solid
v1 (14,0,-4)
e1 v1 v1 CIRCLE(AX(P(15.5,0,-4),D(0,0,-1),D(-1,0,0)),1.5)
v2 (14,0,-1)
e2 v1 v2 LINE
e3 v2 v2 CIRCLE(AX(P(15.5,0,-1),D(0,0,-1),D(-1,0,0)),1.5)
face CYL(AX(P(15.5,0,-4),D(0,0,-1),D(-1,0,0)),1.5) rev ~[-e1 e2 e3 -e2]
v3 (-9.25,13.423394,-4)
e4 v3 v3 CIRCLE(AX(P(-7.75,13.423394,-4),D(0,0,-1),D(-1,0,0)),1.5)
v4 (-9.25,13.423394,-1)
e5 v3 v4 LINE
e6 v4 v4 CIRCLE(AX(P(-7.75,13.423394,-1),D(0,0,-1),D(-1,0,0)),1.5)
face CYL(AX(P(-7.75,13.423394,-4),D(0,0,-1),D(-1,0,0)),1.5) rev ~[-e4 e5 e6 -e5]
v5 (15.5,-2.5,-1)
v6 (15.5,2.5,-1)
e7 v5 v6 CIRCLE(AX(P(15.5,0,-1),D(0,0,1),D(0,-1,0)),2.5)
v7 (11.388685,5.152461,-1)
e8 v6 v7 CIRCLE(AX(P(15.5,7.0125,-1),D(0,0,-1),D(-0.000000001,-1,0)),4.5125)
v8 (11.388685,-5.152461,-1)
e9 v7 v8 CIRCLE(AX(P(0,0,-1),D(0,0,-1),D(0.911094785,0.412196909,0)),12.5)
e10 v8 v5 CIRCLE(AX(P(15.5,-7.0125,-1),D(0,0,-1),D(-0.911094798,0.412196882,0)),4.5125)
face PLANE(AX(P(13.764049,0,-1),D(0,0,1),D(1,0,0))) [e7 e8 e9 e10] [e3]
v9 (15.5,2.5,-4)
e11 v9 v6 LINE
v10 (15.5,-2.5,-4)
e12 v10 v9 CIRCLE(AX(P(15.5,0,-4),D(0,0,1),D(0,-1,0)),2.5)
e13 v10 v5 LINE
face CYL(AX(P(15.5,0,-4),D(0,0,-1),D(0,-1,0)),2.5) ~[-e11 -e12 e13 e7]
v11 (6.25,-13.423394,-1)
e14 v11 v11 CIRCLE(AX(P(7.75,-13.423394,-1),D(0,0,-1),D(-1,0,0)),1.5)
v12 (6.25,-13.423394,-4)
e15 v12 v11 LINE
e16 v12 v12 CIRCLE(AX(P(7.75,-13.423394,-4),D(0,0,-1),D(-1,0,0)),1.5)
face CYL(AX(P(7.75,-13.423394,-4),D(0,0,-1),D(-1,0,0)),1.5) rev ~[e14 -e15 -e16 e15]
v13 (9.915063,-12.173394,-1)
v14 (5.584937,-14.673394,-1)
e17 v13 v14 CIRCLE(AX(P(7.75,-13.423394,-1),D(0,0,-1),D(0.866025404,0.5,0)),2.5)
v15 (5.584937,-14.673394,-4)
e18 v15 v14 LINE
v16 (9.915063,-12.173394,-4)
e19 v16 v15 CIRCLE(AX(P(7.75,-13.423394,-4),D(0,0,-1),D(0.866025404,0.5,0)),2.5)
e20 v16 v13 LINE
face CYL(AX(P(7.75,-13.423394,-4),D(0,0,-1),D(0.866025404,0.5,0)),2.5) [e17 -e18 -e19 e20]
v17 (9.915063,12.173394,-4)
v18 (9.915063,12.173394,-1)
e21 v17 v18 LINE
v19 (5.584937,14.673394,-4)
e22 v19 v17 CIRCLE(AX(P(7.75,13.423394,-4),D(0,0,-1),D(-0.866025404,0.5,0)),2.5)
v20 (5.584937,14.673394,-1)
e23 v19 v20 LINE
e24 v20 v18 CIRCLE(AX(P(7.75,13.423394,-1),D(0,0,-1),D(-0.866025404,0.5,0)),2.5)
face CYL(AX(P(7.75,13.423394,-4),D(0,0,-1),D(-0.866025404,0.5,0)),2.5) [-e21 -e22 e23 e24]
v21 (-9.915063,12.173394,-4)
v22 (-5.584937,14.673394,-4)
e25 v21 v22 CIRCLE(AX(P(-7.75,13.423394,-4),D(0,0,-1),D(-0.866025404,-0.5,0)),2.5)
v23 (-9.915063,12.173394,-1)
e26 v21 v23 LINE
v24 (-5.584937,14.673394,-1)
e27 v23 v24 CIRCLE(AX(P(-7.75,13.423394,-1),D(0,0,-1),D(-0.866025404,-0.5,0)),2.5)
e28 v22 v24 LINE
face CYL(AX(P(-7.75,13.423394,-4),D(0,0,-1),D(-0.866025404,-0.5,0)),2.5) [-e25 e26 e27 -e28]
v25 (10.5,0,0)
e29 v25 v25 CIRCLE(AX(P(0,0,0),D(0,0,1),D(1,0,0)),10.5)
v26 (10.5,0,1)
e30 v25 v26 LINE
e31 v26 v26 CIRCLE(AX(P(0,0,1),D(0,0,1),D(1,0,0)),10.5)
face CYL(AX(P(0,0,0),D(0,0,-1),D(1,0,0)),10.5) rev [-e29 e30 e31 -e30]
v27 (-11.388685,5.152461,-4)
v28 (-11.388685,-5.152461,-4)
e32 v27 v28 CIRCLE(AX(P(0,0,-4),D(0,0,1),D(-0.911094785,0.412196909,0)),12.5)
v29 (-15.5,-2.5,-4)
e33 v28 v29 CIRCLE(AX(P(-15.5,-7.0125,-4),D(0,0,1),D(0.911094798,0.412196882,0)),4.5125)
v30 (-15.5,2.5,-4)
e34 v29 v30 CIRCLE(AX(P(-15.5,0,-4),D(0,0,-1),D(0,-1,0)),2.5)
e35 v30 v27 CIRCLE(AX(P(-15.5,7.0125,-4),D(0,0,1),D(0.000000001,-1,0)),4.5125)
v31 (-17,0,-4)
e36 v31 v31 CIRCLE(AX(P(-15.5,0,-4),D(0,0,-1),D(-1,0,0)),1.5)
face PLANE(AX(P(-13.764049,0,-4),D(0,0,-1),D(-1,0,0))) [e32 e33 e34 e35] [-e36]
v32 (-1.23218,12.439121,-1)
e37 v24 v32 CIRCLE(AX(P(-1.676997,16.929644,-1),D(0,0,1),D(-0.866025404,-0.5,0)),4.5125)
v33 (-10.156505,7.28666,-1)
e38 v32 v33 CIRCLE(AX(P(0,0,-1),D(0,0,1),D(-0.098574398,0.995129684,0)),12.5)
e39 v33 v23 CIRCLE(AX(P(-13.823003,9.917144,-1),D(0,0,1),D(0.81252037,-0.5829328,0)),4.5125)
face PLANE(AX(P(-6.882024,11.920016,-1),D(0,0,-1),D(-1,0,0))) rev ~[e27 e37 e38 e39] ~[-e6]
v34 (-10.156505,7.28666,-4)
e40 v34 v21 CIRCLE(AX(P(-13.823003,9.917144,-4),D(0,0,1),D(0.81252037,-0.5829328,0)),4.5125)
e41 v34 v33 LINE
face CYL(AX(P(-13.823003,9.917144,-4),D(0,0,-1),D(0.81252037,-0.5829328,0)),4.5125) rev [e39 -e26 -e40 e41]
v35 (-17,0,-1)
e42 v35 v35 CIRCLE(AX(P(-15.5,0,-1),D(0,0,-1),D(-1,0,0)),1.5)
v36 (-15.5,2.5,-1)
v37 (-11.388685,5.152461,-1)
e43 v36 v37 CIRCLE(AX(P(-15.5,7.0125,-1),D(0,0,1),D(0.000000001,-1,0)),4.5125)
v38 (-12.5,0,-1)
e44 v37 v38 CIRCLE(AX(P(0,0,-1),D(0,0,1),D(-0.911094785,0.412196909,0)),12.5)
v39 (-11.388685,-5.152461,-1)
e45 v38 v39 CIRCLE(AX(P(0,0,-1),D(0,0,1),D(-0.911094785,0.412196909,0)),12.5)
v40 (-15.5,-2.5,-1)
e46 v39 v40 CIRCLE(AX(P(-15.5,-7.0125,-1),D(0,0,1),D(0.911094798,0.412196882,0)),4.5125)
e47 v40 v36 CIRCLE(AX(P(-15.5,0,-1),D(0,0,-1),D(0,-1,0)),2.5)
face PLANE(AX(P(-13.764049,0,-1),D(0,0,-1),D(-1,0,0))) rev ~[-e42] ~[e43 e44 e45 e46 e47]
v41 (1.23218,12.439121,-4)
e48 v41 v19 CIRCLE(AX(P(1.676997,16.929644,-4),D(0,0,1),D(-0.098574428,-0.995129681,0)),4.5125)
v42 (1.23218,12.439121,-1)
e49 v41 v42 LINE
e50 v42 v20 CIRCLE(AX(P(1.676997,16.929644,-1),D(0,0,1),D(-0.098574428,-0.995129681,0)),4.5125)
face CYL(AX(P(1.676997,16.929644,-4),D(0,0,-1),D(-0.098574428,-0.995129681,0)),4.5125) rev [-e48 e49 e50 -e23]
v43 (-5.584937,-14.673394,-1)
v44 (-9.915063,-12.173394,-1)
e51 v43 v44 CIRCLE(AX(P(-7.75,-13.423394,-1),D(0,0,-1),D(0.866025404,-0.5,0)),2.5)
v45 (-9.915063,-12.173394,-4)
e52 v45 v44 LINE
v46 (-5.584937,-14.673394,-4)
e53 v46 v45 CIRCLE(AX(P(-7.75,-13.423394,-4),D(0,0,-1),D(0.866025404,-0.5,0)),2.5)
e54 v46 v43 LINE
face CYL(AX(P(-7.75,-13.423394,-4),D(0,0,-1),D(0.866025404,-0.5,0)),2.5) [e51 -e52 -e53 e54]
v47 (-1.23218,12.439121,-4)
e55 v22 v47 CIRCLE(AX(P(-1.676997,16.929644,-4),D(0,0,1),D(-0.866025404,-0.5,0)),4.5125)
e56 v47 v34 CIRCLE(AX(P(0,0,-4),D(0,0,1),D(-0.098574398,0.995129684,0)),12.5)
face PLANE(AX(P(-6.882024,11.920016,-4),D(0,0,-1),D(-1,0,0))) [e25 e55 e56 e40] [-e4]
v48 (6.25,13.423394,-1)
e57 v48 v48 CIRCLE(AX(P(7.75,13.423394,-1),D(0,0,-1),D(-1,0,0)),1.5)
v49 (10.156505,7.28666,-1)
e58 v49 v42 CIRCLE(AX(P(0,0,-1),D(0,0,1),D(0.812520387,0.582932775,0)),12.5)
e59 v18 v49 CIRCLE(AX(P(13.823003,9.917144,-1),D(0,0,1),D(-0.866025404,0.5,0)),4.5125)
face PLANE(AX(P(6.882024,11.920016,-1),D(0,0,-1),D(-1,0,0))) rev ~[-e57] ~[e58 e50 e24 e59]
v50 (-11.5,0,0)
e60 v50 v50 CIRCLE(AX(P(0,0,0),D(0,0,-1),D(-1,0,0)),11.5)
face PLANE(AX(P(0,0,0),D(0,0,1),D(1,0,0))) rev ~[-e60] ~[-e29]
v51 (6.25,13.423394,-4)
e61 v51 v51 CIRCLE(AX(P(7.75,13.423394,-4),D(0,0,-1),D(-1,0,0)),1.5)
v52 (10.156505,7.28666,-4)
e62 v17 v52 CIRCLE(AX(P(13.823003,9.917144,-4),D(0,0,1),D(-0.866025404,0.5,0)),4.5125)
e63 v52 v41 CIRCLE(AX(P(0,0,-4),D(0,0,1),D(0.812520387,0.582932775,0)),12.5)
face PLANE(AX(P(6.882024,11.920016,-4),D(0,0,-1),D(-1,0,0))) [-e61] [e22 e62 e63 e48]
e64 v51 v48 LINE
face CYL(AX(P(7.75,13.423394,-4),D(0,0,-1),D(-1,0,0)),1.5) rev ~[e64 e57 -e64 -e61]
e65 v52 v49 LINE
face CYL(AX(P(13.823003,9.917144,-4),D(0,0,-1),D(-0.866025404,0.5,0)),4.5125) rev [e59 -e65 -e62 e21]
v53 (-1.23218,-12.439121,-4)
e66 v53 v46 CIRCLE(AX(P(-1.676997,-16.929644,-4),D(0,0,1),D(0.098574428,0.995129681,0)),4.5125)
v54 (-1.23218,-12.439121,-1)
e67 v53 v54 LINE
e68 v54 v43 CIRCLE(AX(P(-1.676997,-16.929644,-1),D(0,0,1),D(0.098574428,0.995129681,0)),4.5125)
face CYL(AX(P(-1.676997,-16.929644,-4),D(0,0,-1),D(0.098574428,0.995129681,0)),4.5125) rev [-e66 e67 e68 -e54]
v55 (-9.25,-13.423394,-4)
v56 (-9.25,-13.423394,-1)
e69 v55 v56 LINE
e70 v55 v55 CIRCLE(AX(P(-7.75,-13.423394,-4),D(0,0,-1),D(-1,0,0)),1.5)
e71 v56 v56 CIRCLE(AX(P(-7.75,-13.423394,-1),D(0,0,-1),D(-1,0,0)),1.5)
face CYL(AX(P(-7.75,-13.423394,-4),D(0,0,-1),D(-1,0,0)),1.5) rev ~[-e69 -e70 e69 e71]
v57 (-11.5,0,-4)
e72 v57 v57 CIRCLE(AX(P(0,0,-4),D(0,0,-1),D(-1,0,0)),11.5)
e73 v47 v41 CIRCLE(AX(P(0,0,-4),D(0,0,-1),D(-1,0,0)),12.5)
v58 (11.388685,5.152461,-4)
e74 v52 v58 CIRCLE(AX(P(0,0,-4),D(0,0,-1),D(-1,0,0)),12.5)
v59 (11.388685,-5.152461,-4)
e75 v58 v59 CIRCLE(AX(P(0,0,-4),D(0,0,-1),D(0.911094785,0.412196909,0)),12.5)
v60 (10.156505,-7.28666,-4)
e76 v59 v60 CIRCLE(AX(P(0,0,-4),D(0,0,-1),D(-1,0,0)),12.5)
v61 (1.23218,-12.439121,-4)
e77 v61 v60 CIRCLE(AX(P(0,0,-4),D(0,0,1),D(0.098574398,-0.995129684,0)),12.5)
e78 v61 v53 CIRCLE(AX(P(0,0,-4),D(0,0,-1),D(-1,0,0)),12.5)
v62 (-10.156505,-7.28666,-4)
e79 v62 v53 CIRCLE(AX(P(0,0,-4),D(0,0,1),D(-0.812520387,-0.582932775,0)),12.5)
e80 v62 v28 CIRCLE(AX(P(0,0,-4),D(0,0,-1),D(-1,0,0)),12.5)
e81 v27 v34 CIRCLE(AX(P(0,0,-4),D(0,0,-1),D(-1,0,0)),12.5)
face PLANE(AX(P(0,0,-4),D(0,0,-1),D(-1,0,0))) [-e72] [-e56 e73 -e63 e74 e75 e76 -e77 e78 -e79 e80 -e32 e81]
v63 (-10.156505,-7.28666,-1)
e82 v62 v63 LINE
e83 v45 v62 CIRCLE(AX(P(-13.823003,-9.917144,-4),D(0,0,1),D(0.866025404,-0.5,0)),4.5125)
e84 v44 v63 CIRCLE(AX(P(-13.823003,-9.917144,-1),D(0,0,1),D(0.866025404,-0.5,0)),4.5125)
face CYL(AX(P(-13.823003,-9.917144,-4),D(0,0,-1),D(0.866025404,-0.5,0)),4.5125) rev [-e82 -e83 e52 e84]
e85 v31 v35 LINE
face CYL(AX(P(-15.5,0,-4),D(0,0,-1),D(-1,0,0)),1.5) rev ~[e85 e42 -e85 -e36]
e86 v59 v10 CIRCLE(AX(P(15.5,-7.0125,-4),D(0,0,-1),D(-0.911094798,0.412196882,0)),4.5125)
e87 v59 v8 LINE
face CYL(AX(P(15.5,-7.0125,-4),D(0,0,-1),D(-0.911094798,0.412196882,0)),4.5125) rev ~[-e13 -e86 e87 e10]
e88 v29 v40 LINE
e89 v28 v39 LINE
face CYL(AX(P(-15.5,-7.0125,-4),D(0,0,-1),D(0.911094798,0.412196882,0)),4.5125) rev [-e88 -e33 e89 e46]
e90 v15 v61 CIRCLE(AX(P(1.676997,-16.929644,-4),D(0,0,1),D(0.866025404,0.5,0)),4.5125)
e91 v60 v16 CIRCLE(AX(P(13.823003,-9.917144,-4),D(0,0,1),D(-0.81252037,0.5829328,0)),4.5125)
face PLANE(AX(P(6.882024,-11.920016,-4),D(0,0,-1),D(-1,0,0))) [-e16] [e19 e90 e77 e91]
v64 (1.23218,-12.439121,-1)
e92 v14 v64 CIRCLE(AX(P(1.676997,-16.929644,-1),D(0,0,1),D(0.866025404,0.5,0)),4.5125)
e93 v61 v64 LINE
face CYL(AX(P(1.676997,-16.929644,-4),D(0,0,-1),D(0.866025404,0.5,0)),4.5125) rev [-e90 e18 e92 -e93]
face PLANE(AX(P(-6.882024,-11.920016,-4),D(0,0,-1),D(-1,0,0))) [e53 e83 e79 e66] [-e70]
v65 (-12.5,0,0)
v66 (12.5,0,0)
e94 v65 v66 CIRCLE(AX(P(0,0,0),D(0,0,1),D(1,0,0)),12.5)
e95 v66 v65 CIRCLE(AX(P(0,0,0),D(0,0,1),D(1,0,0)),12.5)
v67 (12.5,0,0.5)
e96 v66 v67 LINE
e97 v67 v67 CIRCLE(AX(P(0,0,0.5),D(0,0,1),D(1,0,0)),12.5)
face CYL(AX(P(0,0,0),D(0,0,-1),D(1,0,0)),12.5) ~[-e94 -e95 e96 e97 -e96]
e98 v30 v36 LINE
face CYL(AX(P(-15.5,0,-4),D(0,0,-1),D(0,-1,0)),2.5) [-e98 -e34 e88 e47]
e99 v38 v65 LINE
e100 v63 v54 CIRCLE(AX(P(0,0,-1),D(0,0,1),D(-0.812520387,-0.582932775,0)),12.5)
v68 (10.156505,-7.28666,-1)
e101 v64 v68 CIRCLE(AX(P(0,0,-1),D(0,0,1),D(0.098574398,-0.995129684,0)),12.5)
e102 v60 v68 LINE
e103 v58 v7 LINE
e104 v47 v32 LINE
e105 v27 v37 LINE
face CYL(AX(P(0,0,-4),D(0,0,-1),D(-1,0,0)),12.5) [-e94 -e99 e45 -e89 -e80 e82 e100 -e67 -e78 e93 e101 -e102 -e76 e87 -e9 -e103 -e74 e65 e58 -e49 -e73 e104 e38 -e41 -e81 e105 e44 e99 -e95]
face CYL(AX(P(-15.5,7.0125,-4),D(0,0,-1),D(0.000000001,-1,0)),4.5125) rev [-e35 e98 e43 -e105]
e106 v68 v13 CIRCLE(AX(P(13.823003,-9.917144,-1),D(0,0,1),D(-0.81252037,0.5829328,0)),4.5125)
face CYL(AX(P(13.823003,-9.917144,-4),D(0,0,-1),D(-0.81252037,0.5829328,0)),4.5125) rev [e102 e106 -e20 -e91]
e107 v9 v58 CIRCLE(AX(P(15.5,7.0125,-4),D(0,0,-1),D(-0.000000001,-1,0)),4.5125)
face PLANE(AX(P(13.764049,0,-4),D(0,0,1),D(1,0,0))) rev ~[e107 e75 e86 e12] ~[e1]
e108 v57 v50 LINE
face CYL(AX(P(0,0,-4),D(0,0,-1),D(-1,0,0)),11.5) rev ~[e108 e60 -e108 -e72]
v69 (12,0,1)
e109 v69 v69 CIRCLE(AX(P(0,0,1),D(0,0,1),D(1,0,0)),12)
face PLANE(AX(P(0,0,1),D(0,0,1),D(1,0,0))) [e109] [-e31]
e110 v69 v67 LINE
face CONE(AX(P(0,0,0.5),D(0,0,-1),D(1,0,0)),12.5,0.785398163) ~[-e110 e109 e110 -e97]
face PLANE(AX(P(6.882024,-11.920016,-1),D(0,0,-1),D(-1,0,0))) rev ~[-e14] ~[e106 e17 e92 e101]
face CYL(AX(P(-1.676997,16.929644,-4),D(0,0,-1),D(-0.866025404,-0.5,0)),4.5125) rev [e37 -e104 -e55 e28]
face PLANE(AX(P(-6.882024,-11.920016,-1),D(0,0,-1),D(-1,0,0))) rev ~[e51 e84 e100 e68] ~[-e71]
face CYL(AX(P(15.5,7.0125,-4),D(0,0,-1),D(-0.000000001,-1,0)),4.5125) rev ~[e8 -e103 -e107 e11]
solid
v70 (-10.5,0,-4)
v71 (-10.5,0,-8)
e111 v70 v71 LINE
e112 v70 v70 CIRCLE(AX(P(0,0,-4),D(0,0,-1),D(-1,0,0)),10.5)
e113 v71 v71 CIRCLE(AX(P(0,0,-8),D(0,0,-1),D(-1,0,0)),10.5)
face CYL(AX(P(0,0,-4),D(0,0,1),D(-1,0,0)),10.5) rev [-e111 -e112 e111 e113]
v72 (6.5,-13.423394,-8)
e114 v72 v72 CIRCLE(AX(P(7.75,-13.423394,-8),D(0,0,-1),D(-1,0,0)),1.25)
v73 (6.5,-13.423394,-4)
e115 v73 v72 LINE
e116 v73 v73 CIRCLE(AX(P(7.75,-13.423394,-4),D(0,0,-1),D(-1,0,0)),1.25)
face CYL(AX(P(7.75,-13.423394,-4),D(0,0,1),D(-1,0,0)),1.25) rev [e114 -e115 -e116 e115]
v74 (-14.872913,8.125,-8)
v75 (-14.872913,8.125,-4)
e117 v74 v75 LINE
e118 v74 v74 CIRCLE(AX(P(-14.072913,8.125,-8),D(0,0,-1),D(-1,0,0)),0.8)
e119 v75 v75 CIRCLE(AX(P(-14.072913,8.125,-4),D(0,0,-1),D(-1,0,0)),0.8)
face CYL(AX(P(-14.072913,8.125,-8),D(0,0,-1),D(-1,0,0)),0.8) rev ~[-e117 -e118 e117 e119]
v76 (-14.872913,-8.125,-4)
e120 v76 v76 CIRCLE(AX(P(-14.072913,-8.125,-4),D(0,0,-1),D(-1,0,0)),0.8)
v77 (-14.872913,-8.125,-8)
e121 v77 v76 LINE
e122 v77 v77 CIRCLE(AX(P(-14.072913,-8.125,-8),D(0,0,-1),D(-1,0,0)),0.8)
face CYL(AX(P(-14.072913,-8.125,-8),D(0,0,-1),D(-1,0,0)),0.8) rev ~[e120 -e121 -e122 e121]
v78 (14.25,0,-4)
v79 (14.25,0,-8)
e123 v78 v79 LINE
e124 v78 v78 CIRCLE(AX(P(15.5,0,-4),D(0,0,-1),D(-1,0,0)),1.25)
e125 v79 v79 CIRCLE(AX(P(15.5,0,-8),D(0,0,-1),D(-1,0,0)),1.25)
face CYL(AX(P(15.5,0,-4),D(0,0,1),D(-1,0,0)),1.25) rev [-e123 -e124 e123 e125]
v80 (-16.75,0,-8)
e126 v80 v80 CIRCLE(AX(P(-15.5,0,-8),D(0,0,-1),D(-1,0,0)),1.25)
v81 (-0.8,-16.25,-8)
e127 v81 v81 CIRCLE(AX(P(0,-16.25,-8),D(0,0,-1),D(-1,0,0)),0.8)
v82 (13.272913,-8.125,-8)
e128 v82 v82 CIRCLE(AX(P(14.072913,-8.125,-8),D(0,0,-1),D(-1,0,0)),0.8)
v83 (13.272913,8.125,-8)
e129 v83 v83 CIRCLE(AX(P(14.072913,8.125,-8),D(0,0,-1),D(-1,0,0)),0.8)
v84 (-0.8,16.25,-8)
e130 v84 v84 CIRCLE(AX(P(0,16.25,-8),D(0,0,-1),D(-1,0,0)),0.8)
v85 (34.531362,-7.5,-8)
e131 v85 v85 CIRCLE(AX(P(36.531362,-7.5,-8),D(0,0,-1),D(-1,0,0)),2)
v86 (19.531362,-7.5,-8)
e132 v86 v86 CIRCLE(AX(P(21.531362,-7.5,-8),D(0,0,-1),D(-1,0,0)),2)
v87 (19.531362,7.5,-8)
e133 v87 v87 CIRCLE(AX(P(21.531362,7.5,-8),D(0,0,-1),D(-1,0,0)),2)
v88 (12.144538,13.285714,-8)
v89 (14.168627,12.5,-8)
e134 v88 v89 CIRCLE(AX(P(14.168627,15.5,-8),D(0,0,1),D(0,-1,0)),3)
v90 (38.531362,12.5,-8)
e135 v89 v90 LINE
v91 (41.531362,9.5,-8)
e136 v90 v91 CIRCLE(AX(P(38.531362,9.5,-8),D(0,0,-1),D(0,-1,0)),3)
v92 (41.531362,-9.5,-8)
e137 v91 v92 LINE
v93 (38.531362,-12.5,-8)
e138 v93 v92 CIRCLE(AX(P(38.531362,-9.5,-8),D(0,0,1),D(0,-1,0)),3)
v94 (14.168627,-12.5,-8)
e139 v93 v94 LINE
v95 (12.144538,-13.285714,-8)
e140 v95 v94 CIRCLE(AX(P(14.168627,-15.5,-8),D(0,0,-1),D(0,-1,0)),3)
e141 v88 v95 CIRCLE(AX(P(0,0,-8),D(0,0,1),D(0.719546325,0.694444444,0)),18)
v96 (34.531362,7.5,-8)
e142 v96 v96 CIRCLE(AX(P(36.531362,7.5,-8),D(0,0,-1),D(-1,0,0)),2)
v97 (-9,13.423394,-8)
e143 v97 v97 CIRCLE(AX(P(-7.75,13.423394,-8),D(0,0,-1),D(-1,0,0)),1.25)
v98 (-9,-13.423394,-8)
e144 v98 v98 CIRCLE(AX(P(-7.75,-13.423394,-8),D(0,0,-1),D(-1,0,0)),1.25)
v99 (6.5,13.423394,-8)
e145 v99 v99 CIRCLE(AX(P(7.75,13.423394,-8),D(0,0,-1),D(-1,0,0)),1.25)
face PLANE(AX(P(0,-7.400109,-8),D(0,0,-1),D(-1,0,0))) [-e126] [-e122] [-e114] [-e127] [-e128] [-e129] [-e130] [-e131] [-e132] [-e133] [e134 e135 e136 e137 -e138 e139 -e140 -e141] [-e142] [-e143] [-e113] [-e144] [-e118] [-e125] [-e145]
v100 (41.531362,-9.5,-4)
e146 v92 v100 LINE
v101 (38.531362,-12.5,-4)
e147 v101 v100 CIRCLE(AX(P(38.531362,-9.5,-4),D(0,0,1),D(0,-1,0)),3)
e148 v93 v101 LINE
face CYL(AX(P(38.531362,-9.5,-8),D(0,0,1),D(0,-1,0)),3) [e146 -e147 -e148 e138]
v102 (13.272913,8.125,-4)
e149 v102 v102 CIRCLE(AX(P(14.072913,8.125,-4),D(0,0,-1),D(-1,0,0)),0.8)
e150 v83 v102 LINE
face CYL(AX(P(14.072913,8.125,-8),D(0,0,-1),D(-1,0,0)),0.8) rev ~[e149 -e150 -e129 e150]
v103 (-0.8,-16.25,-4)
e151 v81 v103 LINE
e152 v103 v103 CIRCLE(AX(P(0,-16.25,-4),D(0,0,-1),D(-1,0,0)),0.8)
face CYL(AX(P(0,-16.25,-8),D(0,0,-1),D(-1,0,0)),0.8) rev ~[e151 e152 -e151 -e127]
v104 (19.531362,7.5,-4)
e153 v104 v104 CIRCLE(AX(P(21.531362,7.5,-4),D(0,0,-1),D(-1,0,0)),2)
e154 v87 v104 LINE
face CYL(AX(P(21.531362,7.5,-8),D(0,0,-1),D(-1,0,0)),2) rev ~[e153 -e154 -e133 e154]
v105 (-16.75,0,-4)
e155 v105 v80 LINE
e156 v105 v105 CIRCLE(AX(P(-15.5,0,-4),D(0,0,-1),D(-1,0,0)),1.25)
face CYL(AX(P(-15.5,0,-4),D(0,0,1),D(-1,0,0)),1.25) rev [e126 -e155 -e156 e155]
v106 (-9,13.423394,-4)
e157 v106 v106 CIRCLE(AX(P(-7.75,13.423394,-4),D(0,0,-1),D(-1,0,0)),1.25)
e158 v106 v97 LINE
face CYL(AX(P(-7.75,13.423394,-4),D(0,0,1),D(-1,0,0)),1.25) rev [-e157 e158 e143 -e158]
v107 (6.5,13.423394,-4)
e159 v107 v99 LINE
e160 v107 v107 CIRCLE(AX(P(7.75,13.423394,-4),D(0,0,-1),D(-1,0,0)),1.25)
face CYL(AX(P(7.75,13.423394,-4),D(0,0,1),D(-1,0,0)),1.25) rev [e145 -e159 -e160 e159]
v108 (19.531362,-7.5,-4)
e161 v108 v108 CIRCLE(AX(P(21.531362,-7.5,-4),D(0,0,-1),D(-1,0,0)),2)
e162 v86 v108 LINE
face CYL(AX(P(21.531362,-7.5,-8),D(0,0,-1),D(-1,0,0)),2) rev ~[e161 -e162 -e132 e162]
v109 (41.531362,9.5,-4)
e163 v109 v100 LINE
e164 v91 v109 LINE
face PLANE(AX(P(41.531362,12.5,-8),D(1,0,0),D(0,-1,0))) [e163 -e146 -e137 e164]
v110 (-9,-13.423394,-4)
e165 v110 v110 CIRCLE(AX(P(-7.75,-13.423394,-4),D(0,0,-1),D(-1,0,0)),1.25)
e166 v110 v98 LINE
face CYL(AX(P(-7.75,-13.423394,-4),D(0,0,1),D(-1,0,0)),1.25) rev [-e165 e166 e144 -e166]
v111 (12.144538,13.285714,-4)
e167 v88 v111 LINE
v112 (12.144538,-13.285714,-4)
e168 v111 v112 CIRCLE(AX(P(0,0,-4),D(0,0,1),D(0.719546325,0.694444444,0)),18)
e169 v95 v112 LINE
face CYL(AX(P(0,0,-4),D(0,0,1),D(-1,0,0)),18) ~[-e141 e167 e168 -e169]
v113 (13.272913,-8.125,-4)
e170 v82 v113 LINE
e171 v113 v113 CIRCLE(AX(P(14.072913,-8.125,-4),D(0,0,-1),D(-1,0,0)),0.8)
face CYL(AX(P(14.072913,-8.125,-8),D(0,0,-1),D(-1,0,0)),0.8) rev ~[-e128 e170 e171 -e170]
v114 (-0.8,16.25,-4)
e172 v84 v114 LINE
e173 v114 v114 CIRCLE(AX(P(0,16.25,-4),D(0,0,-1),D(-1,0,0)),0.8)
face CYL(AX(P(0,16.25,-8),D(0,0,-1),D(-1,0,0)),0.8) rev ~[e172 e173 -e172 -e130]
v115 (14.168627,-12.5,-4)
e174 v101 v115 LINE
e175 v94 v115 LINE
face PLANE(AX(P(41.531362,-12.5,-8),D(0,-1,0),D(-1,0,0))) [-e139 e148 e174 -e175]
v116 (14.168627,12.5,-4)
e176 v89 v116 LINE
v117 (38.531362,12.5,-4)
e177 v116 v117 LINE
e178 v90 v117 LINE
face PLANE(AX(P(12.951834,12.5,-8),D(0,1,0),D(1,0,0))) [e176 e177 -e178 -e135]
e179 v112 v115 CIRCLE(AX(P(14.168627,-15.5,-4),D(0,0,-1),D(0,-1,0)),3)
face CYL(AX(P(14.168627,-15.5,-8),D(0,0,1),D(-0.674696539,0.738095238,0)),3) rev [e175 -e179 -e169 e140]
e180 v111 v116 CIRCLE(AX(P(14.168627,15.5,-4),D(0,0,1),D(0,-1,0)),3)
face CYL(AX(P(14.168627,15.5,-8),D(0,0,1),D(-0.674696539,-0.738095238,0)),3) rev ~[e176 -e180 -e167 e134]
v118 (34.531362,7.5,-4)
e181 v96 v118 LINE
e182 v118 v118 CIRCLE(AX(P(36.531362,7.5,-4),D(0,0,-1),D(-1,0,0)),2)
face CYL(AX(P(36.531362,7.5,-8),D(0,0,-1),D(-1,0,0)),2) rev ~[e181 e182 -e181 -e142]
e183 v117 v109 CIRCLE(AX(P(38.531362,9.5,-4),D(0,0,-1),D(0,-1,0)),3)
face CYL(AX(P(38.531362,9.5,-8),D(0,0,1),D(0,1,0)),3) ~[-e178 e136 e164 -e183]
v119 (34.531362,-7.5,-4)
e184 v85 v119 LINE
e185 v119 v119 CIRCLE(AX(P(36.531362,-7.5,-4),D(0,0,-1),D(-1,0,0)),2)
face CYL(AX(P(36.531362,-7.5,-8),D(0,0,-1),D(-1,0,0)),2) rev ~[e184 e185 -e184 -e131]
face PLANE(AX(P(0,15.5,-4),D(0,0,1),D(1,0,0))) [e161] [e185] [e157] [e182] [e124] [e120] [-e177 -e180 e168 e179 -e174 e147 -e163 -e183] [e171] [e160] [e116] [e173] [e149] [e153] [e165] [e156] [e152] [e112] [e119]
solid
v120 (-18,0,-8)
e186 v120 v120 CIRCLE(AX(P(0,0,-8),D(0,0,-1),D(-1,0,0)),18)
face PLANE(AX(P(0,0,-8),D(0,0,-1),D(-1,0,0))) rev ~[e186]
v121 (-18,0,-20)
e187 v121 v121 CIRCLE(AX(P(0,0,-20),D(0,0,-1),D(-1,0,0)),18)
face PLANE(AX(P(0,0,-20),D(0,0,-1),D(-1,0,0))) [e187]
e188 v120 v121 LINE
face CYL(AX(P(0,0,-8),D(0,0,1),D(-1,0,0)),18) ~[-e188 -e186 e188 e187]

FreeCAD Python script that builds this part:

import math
import FreeCAD as App
import Part
import Sketcher


def edges_at(feature, points):
    """Names of the edges that pass closest to the given points."""
    edges = feature.Shape.Edges
    near = lambda p: min(range(len(edges)), key=lambda i: edges[i].distToShape(Part.Vertex(*p))[0])
    return sorted({f"Edge{near(p) + 1}" for p in points})

doc = App.newDocument("Part")
body = doc.addObject("PartDesign::Body", "Body")

# Sketch on XY plane
sketch1 = body.newObject("Sketcher::SketchObject", "Sketch")
sketch1.AttachmentSupport = (doc.getObject("XY_Plane"), [""])
sketch1.MapMode = "FlatFace"
sketch1.addGeometry(Part.Circle(App.Vector(0, 0, 0), App.Vector(0, 0, 1), 12), False)
sketch1.addGeometry(Part.Circle(App.Vector(0, 0, 0), App.Vector(0, 0, 1), 10), False)
sketch1.addConstraint(Sketcher.Constraint("Coincident", 0, 3, -1, 1))
sketch1.addConstraint(Sketcher.Constraint("Coincident", 1, 3, -1, 1))
sketch1.addConstraint(Sketcher.Constraint("Diameter", 0, 25.0))
sketch1.addConstraint(Sketcher.Constraint("Diameter", 1, 21.0))
pad1 = body.newObject("PartDesign::Pad", "Pad")
pad1.Profile = sketch1
pad1.Length = 1

# Sketch on XY plane
sketch2 = body.newObject("Sketcher::SketchObject", "Sketch001")
sketch2.AttachmentSupport = (doc.getObject("XY_Plane"), [""])
sketch2.MapMode = "FlatFace"
sketch2.AttachmentOffset = App.Placement(App.Vector(0, 0, -4), App.Rotation())
sketch2.addGeometry(Part.Circle(App.Vector(0, 0, 0), App.Vector(0, 0, 1), 12), False)
sketch2.addGeometry(Part.Circle(App.Vector(0, 0, 0), App.Vector(0, 0, 1), 12), False)
sketch2.addConstraint(Sketcher.Constraint("Coincident", 0, 3, -1, 1))
sketch2.addConstraint(Sketcher.Constraint("Coincident", 1, 3, -1, 1))
sketch2.addConstraint(Sketcher.Constraint("Diameter", 0, 25.0))
sketch2.addConstraint(Sketcher.Constraint("Diameter", 1, 23.0))
pad2 = body.newObject("PartDesign::Pad", "Pad001")
pad2.Profile = sketch2
pad2.Length = 4

# Sketch on XY plane
sketch3 = body.newObject("Sketcher::SketchObject", "Sketch002")
sketch3.AttachmentSupport = (doc.getObject("XY_Plane"), [""])
sketch3.MapMode = "FlatFace"
sketch3.AttachmentOffset = App.Placement(App.Vector(0, 0, -4), App.Rotation())
sketch3.addGeometry(Part.ArcOfCircle(Part.Circle(App.Vector(-7.8, 13.4, 0), App.Vector(0, 0, 1), 2.5), math.radians(30), math.radians(210)), False)
sketch3.addGeometry(Part.ArcOfCircle(Part.Circle(App.Vector(-1.7, 16.9, 0), App.Vector(0, 0, 1), 4.5), math.radians(-150), math.radians(-84)), False)
sketch3.addGeometry(Part.ArcOfCircle(Part.Circle(App.Vector(0, 0, 0), App.Vector(0, 0, 1), 12.5), math.radians(96), math.radians(144)), False)
sketch3.addGeometry(Part.ArcOfCircle(Part.Circle(App.Vector(-13.8, 9.9, 0), App.Vector(0, 0, 1), 4.5), math.radians(-36), math.radians(30)), False)
sketch3.addGeometry(Part.Circle(App.Vector(-7.8, 13.4, 0), App.Vector(0, 0, 1), 1.5), False)
sketch3.addGeometry(Part.ArcOfCircle(Part.Circle(App.Vector(0, 0, 0), App.Vector(0, 0, 1), 12.5), math.radians(-24), math.radians(24)), False)
sketch3.addGeometry(Part.ArcOfCircle(Part.Circle(App.Vector(15.5, 7, 0), App.Vector(0, 0, 1), 4.5), math.radians(-156), math.radians(-90)), False)
sketch3.addGeometry(Part.ArcOfCircle(Part.Circle(App.Vector(15.5, 0, 0), App.Vector(0, 0, 1), 2.5), math.radians(-90), math.radians(90)), False)
sketch3.addGeometry(Part.ArcOfCircle(Part.Circle(App.Vector(15.5, -7, 0), App.Vector(0, 0, 1), 4.5), math.radians(90), math.radians(156)), False)
sketch3.addGeometry(Part.Circle(App.Vector(15.5, 0, 0), App.Vector(0, 0, 1), 1.5), False)
sketch3.addGeometry(Part.ArcOfCircle(Part.Circle(App.Vector(-15.5, 7, 0), App.Vector(0, 0, 1), 4.5), math.radians(-90), math.radians(-24)), False)
sketch3.addGeometry(Part.ArcOfCircle(Part.Circle(App.Vector(0, 0, 0), App.Vector(0, 0, 1), 12.5), math.radians(156), math.radians(204)), False)
sketch3.addGeometry(Part.ArcOfCircle(Part.Circle(App.Vector(-15.5, -7, 0), App.Vector(0, 0, 1), 4.5), math.radians(24), math.radians(90)), False)
sketch3.addGeometry(Part.ArcOfCircle(Part.Circle(App.Vector(-15.5, 0, 0), App.Vector(0, 0, 1), 2.5), math.radians(90), math.radians(270)), False)
sketch3.addGeometry(Part.Circle(App.Vector(-15.5, 0, 0), App.Vector(0, 0, 1), 1.5), False)
sketch3.addGeometry(Part.ArcOfCircle(Part.Circle(App.Vector(-13.8, -9.9, 0), App.Vector(0, 0, 1), 4.5), math.radians(-30), math.radians(36)), False)
sketch3.addGeometry(Part.ArcOfCircle(Part.Circle(App.Vector(0, 0, 0), App.Vector(0, 0, 1), 12.5), math.radians(-144), math.radians(-96)), False)
sketch3.addGeometry(Part.ArcOfCircle(Part.Circle(App.Vector(-1.7, -16.9, 0), App.Vector(0, 0, 1), 4.5), math.radians(84), math.radians(150)), False)
sketch3.addGeometry(Part.ArcOfCircle(Part.Circle(App.Vector(-7.8, -13.4, 0), App.Vector(0, 0, 1), 2.5), math.radians(150), math.radians(330)), False)
sketch3.addGeometry(Part.Circle(App.Vector(-7.8, -13.4, 0), App.Vector(0, 0, 1), 1.5), False)
sketch3.addGeometry(Part.ArcOfCircle(Part.Circle(App.Vector(1.7, -16.9, 0), App.Vector(0, 0, 1), 4.5), math.radians(30), math.radians(96)), False)
sketch3.addGeometry(Part.ArcOfCircle(Part.Circle(App.Vector(0, 0, 0), App.Vector(0, 0, 1), 12.5), math.radians(-84), math.radians(-36)), False)
sketch3.addGeometry(Part.ArcOfCircle(Part.Circle(App.Vector(13.8, -9.9, 0), App.Vector(0, 0, 1), 4.5), math.radians(144), math.radians(210)), False)
sketch3.addGeometry(Part.ArcOfCircle(Part.Circle(App.Vector(7.8, -13.4, 0), App.Vector(0, 0, 1), 2.5), math.radians(-150), math.radians(30)), False)
sketch3.addGeometry(Part.Circle(App.Vector(7.8, -13.4, 0), App.Vector(0, 0, 1), 1.5), False)
sketch3.addGeometry(Part.ArcOfCircle(Part.Circle(App.Vector(13.8, 9.9, 0), App.Vector(0, 0, 1), 4.5), math.radians(150), math.radians(216)), False)
sketch3.addGeometry(Part.ArcOfCircle(Part.Circle(App.Vector(0, 0, 0), App.Vector(0, 0, 1), 12.5), math.radians(36), math.radians(84)), False)
sketch3.addGeometry(Part.ArcOfCircle(Part.Circle(App.Vector(1.7, 16.9, 0), App.Vector(0, 0, 1), 4.5), math.radians(-96), math.radians(-30)), False)
sketch3.addGeometry(Part.ArcOfCircle(Part.Circle(App.Vector(7.8, 13.4, 0), App.Vector(0, 0, 1), 2.5), math.radians(-30), math.radians(150)), False)
sketch3.addGeometry(Part.Circle(App.Vector(7.8, 13.4, 0), App.Vector(0, 0, 1), 1.5), False)
sketch3.addConstraint(Sketcher.Constraint("Tangent", 0, 1, 1, 1))
sketch3.addConstraint(Sketcher.Constraint("Tangent", 1, 2, 2, 1))
sketch3.addConstraint(Sketcher.Constraint("Tangent", 2, 2, 3, 1))
sketch3.addConstraint(Sketcher.Constraint("Tangent", 3, 2, 0, 2))
sketch3.addConstraint(Sketcher.Constraint("Tangent", 5, 2, 6, 1))
sketch3.addConstraint(Sketcher.Constraint("Tangent", 6, 2, 7, 2))
sketch3.addConstraint(Sketcher.Constraint("Tangent", 7, 1, 8, 1))
sketch3.addConstraint(Sketcher.Constraint("Tangent", 8, 2, 5, 1))
sketch3.addConstraint(Sketcher.Constraint("Tangent", 10, 2, 11, 1))
sketch3.addConstraint(Sketcher.Constraint("Tangent", 11, 2, 12, 1))
sketch3.addConstraint(Sketcher.Constraint("Tangent", 12, 2, 13, 2))
sketch3.addConstraint(Sketcher.Constraint("Tangent", 13, 1, 10, 1))
sketch3.addConstraint(Sketcher.Constraint("Tangent", 15, 2, 16, 1))
sketch3.addConstraint(Sketcher.Constraint("Tangent", 16, 2, 17, 1))
sketch3.addConstraint(Sketcher.Constraint("Tangent", 17, 2, 18, 2))
sketch3.addConstraint(Sketcher.Constraint("Tangent", 18, 1, 15, 1))
sketch3.addConstraint(Sketcher.Constraint("Tangent", 20, 2, 21, 1))
sketch3.addConstraint(Sketcher.Constraint("Tangent", 21, 2, 22, 1))
sketch3.addConstraint(Sketcher.Constraint("Tangent", 22, 2, 23, 2))
sketch3.addConstraint(Sketcher.Constraint("Tangent", 23, 1, 20, 1))
sketch3.addConstraint(Sketcher.Constraint("Tangent", 25, 2, 26, 1))
sketch3.addConstraint(Sketcher.Constraint("Tangent", 26, 2, 27, 1))
sketch3.addConstraint(Sketcher.Constraint("Tangent", 27, 2, 28, 2))
sketch3.addConstraint(Sketcher.Constraint("Tangent", 28, 1, 25, 1))
sketch3.addConstraint(Sketcher.Constraint("Coincident", 2, 3, -1, 1))
sketch3.addConstraint(Sketcher.Constraint("Coincident", 5, 3, -1, 1))
sketch3.addConstraint(Sketcher.Constraint("Coincident", 11, 3, -1, 1))
sketch3.addConstraint(Sketcher.Constraint("Coincident", 16, 3, -1, 1))
sketch3.addConstraint(Sketcher.Constraint("Coincident", 21, 3, -1, 1))
sketch3.addConstraint(Sketcher.Constraint("Coincident", 26, 3, -1, 1))
sketch3.addConstraint(Sketcher.Constraint("Coincident", 4, 3, 0, 3))
sketch3.addConstraint(Sketcher.Constraint("Coincident", 9, 3, 7, 3))
sketch3.addConstraint(Sketcher.Constraint("Coincident", 14, 3, 13, 3))
sketch3.addConstraint(Sketcher.Constraint("Coincident", 19, 3, 18, 3))
sketch3.addConstraint(Sketcher.Constraint("Coincident", 24, 3, 23, 3))
sketch3.addConstraint(Sketcher.Constraint("Coincident", 29, 3, 28, 3))
sketch3.addConstraint(Sketcher.Constraint("Equal", 1, 3))
sketch3.addConstraint(Sketcher.Constraint("Equal", 2, 5))
sketch3.addConstraint(Sketcher.Constraint("Equal", 3, 6))
sketch3.addConstraint(Sketcher.Constraint("Equal", 0, 7))
sketch3.addConstraint(Sketcher.Constraint("Equal", 6, 8))
sketch3.addConstraint(Sketcher.Constraint("Equal", 4, 9))
sketch3.addConstraint(Sketcher.Constraint("Equal", 8, 10))
sketch3.addConstraint(Sketcher.Constraint("Equal", 5, 11))
sketch3.addConstraint(Sketcher.Constraint("Equal", 10, 12))
sketch3.addConstraint(Sketcher.Constraint("Equal", 7, 13))
sketch3.addConstraint(Sketcher.Constraint("Equal", 9, 14))
sketch3.addConstraint(Sketcher.Constraint("Equal", 12, 15))
sketch3.addConstraint(Sketcher.Constraint("Equal", 11, 16))
sketch3.addConstraint(Sketcher.Constraint("Equal", 15, 17))
sketch3.addConstraint(Sketcher.Constraint("Equal", 13, 18))
sketch3.addConstraint(Sketcher.Constraint("Equal", 14, 19))
sketch3.addConstraint(Sketcher.Constraint("Equal", 17, 20))
sketch3.addConstraint(Sketcher.Constraint("Equal", 16, 21))
sketch3.addConstraint(Sketcher.Constraint("Equal", 20, 22))
sketch3.addConstraint(Sketcher.Constraint("Equal", 18, 23))
sketch3.addConstraint(Sketcher.Constraint("Equal", 19, 24))
sketch3.addConstraint(Sketcher.Constraint("Equal", 22, 25))
sketch3.addConstraint(Sketcher.Constraint("Equal", 21, 26))
sketch3.addConstraint(Sketcher.Constraint("Equal", 25, 27))
sketch3.addConstraint(Sketcher.Constraint("Equal", 23, 28))
sketch3.addConstraint(Sketcher.Constraint("Equal", 24, 29))
sketch3.addConstraint(Sketcher.Constraint("Symmetric", 7, 3, 13, 3, -1, 1))
sketch3.addConstraint(Sketcher.Constraint("Symmetric", 0, 3, 23, 3, -1, 1))
sketch3.addConstraint(Sketcher.Constraint("Symmetric", 18, 3, 28, 3, -1, 1))
sketch3.addConstraint(Sketcher.Constraint("Symmetric", 18, 3, 23, 3, -2))
sketch3.addConstraint(Sketcher.Constraint("PointOnObject", 7, 3, -1))
sketch3.addConstraint(Sketcher.Constraint("Vertical", 6, 3, 7, 3))
sketch3.addConstraint(Sketcher.Constraint("Diameter", 4, 3.0))
sketch3.addConstraint(Sketcher.Constraint("Radius", 0, 2.5))
sketch3.addConstraint(Sketcher.Constraint("Radius", 2, 12.5))
sketch3.addConstraint(Sketcher.Constraint("DistanceX", -1, 1, 6, 3, 15.5))
sketch3.addConstraint(Sketcher.Constraint("DistanceX", 15, 3, 20, 3, 15.5))
sketch3.addConstraint(Sketcher.Constraint("DistanceX", 0, 3, -1, 1, 7.75))
pad3 = body.newObject("PartDesign::Pad", "Pad002")
pad3.Profile = sketch3
pad3.Length = 3
doc.recompute()

chamfer = body.newObject("PartDesign::Chamfer", "Chamfer")
chamfer.Base = (pad3, edges_at(pad3, [(-12.5, 0, 1)]))
chamfer.Size = 0.5
body2 = doc.addObject("PartDesign::Body", "Body001")

# Sketch on XY plane
sketch4 = body2.newObject("Sketcher::SketchObject", "Sketch003")
sketch4.AttachmentSupport = (doc.getObject("XY_Plane001"), [""])
sketch4.MapMode = "FlatFace"
sketch4.AttachmentOffset = App.Placement(App.Vector(0, 0, -4), App.Rotation())
sketch4.addGeometry(Part.LineSegment(App.Vector(18, 0, 0), App.Vector(18, -26, 0)), False)
sketch4.addGeometry(Part.LineSegment(App.Vector(18, -26, 0), App.Vector(-18, -26, 0)), False)
sketch4.addGeometry(Part.LineSegment(App.Vector(-18, -26, 0), App.Vector(-18, 0, 0)), False)
sketch4.addGeometry(Part.ArcOfCircle(Part.Circle(App.Vector(0, 0, 0), App.Vector(0, 0, 1), 18), math.radians(0), math.radians(180)), False)
sketch4.addGeometry(Part.Circle(App.Vector(7.8, -13.4, 0), App.Vector(0, 0, 1), 1.2), False)
sketch4.addGeometry(Part.Circle(App.Vector(13.4, -7.8, 0), App.Vector(0, 0, 1), 1.2), False)
sketch4.addGeometry(Part.Circle(App.Vector(0, -15.5, 0), App.Vector(0, 0, 1), 1.2), False)
sketch4.addGeometry(Part.Circle(App.Vector(-7.8, -13.4, 0), App.Vector(0, 0, 1), 1.2), False)
sketch4.addGeometry(Part.Circle(App.Vector(-13.4, -7.8, 0), App.Vector(0, 0, 1), 1.2), False)
sketch4.addGeometry(Part.Circle(App.Vector(15.5, 0, 0), App.Vector(0, 0, 1), 1.2), False)
sketch4.addGeometry(Part.Circle(App.Vector(13.4, 7.8, 0), App.Vector(0, 0, 1), 1.2), False)
sketch4.addGeometry(Part.Circle(App.Vector(7.8, 13.4, 0), App.Vector(0, 0, 1), 1.2), False)
sketch4.addGeometry(Part.Circle(App.Vector(0, 0, 0), App.Vector(0, 0, 1), 10.5), False)
sketch4.addGeometry(Part.Circle(App.Vector(-15.5, 0, 0), App.Vector(0, 0, 1), 1.2), False)
sketch4.addGeometry(Part.Circle(App.Vector(-13.4, 7.8, 0), App.Vector(0, 0, 1), 1.2), False)
sketch4.addGeometry(Part.Circle(App.Vector(0, 15.5, 0), App.Vector(0, 0, 1), 1.2), False)
sketch4.addGeometry(Part.Circle(App.Vector(-7.8, 13.4, 0), App.Vector(0, 0, 1), 1.2), False)
sketch4.addConstraint(Sketcher.Constraint("Coincident", 0, 2, 1, 1))
sketch4.addConstraint(Sketcher.Constraint("Coincident", 1, 2, 2, 1))
sketch4.addConstraint(Sketcher.Constraint("Tangent", 2, 2, 3, 2))
sketch4.addConstraint(Sketcher.Constraint("Tangent", 3, 1, 0, 1))
sketch4.addConstraint(Sketcher.Constraint("Vertical", 0))
sketch4.addConstraint(Sketcher.Constraint("Horizontal", 1))
sketch4.addConstraint(Sketcher.Constraint("Vertical", 2))
sketch4.addConstraint(Sketcher.Constraint("Coincident", 3, 3, -1, 1))
sketch4.addConstraint(Sketcher.Constraint("Coincident", 12, 3, -1, 1))
sketch4.addConstraint(Sketcher.Constraint("Equal", 4, 5))
sketch4.addConstraint(Sketcher.Constraint("Equal", 5, 6))
sketch4.addConstraint(Sketcher.Constraint("Equal", 6, 7))
sketch4.addConstraint(Sketcher.Constraint("Equal", 7, 8))
sketch4.addConstraint(Sketcher.Constraint("Equal", 8, 9))
sketch4.addConstraint(Sketcher.Constraint("Equal", 9, 10))
sketch4.addConstraint(Sketcher.Constraint("Equal", 10, 11))
sketch4.addConstraint(Sketcher.Constraint("Equal", 11, 13))
sketch4.addConstraint(Sketcher.Constraint("Equal", 13, 14))
sketch4.addConstraint(Sketcher.Constraint("Equal", 14, 15))
sketch4.addConstraint(Sketcher.Constraint("Equal", 15, 16))
sketch4.addConstraint(Sketcher.Constraint("Symmetric", 8, 3, 10, 3, -1, 1))
sketch4.addConstraint(Sketcher.Constraint("Symmetric", 7, 3, 11, 3, -1, 1))
sketch4.addConstraint(Sketcher.Constraint("Symmetric", 9, 3, 13, 3, -1, 1))
sketch4.addConstraint(Sketcher.Constraint("Symmetric", 5, 3, 14, 3, -1, 1))
sketch4.addConstraint(Sketcher.Constraint("Symmetric", 6, 3, 15, 3, -1, 1))
sketch4.addConstraint(Sketcher.Constraint("Symmetric", 4, 3, 16, 3, -1, 1))
sketch4.addConstraint(Sketcher.Constraint("Symmetric", 4, 3, 7, 3, -2))
sketch4.addConstraint(Sketcher.Constraint("Symmetric", 5, 3, 8, 3, -2))
sketch4.addConstraint(Sketcher.Constraint("PointOnObject", 6, 3, -2))
sketch4.addConstraint(Sketcher.Constraint("PointOnObject", 9, 3, -1))
sketch4.addConstraint(Sketcher.Constraint("Diameter", 12, 21.0))
sketch4.addConstraint(Sketcher.Constraint("Radius", 3, 18.0))
sketch4.addConstraint(Sketcher.Constraint("Diameter", 4, 2.5))
sketch4.addConstraint(Sketcher.Constraint("DistanceY", 0, 2, 0, 1, 26.0))
sketch4.addConstraint(Sketcher.Constraint("DistanceY", 6, 3, -1, 1, 15.5))
sketch4.addConstraint(Sketcher.Constraint("DistanceX", -1, 1, 9, 3, 15.5))
sketch4.addConstraint(Sketcher.Constraint("DistanceX", 7, 3, 4, 3, 15.5))
sketch4.addConstraint(Sketcher.Constraint("DistanceY", 5, 3, 10, 3, 15.5))
sketch4.addConstraint(Sketcher.Constraint("DistanceY", 4, 3, -1, 1, 13.423394))
sketch4.addConstraint(Sketcher.Constraint("DistanceX", -1, 1, 5, 3, 13.423394))
pad4 = body2.newObject("PartDesign::Pad", "Pad003")
pad4.Profile = sketch4
pad4.Length = 4
pad4.Reversed = True

# Sketch on XY plane
sketch5 = body2.newObject("Sketcher::SketchObject", "Sketch004")
sketch5.AttachmentSupport = (doc.getObject("XY_Plane001"), [""])
sketch5.MapMode = "FlatFace"
sketch5.AttachmentOffset = App.Placement(App.Vector(0, 0, -8), App.Rotation())
sketch5.addGeometry(Part.ArcOfCircle(Part.Circle(App.Vector(0, 0, 0), App.Vector(0, 0, 1), 18), math.radians(180), math.radians(360)), False)
sketch5.addGeometry(Part.LineSegment(App.Vector(18, 0, 0), App.Vector(18, -26, 0)), False)
sketch5.addGeometry(Part.LineSegment(App.Vector(18, -26, 0), App.Vector(-18, -26, 0)), False)
sketch5.addGeometry(Part.LineSegment(App.Vector(-18, -26, 0), App.Vector(-18, 0, 0)), False)
sketch5.addConstraint(Sketcher.Constraint("Tangent", 0, 2, 1, 1))
sketch5.addConstraint(Sketcher.Constraint("Coincident", 1, 2, 2, 1))
sketch5.addConstraint(Sketcher.Constraint("Coincident", 2, 2, 3, 1))
sketch5.addConstraint(Sketcher.Constraint("Tangent", 3, 2, 0, 1))
sketch5.addConstraint(Sketcher.Constraint("Vertical", 1))
sketch5.addConstraint(Sketcher.Constraint("Horizontal", 2))
sketch5.addConstraint(Sketcher.Constraint("Vertical", 3))
sketch5.addConstraint(Sketcher.Constraint("Coincident", 0, 3, -1, 1))
sketch5.addConstraint(Sketcher.Constraint("Radius", 0, 18.0))
sketch5.addConstraint(Sketcher.Constraint("DistanceY", 1, 2, 1, 1, 26.0))
pocket1 = body2.newObject("PartDesign::Pocket", "Pocket")
pocket1.Profile = sketch5
pocket1.Length = 10
pocket1.Reversed = True

# Sketch on XY plane
sketch6 = body2.newObject("Sketcher::SketchObject", "Sketch005")
sketch6.AttachmentSupport = (doc.getObject("XY_Plane001"), [""])
sketch6.MapMode = "FlatFace"
sketch6.AttachmentOffset = App.Placement(App.Vector(0, 0, -4), App.Rotation())
sketch6.addGeometry(Part.Circle(App.Vector(0, 15.5, 0), App.Vector(0, 0, 1), 1.2), False)
sketch6.addGeometry(Part.Circle(App.Vector(13.4, 7.8, 0), App.Vector(0, 0, 1), 1.2), False)
sketch6.addGeometry(Part.Circle(App.Vector(13.4, -7.8, 0), App.Vector(0, 0, 1), 1.2), False)
sketch6.addGeometry(Part.Circle(App.Vector(0, -15.5, 0), App.Vector(0, 0, 1), 1.2), False)
sketch6.addGeometry(Part.Circle(App.Vector(-13.4, -7.8, 0), App.Vector(0, 0, 1), 1.2), False)
sketch6.addGeometry(Part.Circle(App.Vector(-13.4, 7.8, 0), App.Vector(0, 0, 1), 1.2), False)
sketch6.addConstraint(Sketcher.Constraint("Equal", 0, 1))
sketch6.addConstraint(Sketcher.Constraint("Equal", 1, 2))
sketch6.addConstraint(Sketcher.Constraint("Equal", 2, 3))
sketch6.addConstraint(Sketcher.Constraint("Equal", 3, 4))
sketch6.addConstraint(Sketcher.Constraint("Equal", 4, 5))
sketch6.addConstraint(Sketcher.Constraint("Symmetric", 0, 3, 3, 3, -1, 1))
sketch6.addConstraint(Sketcher.Constraint("Symmetric", 1, 3, 4, 3, -1, 1))
sketch6.addConstraint(Sketcher.Constraint("Symmetric", 2, 3, 5, 3, -1, 1))
sketch6.addConstraint(Sketcher.Constraint("Symmetric", 2, 3, 4, 3, -2))
sketch6.addConstraint(Sketcher.Constraint("PointOnObject", 0, 3, -2))
sketch6.addConstraint(Sketcher.Constraint("Diameter", 0, 2.5))
sketch6.addConstraint(Sketcher.Constraint("DistanceY", 3, 3, 0, 3, 31.0))
sketch6.addConstraint(Sketcher.Constraint("DistanceY", 2, 3, 1, 3, 15.5))
sketch6.addConstraint(Sketcher.Constraint("DistanceX", -1, 1, 1, 3, 13.423394))
pad5 = body2.newObject("PartDesign::Pad", "Pad004")
pad5.Profile = sketch6
pad5.Length = 4
pad5.Reversed = True

# Sketch on XY plane
sketch7 = body2.newObject("Sketcher::SketchObject", "Sketch006")
sketch7.AttachmentSupport = (doc.getObject("XY_Plane001"), [""])
sketch7.MapMode = "FlatFace"
sketch7.AttachmentOffset = App.Placement(App.Vector(0, 0, -8), App.Rotation())
sketch7.addGeometry(Part.Circle(App.Vector(0, 16.2, 0), App.Vector(0, 0, 1), 0.8), False)
sketch7.addGeometry(Part.Circle(App.Vector(-14.1, 8.1, 0), App.Vector(0, 0, 1), 0.8), False)
sketch7.addGeometry(Part.Circle(App.Vector(-14.1, -8.1, 0), App.Vector(0, 0, 1), 0.8), False)
sketch7.addGeometry(Part.Circle(App.Vector(0, -16.2, 0), App.Vector(0, 0, 1), 0.8), False)
sketch7.addGeometry(Part.Circle(App.Vector(14.1, -8.1, 0), App.Vector(0, 0, 1), 0.8), False)
sketch7.addGeometry(Part.Circle(App.Vector(14.1, 8.1, 0), App.Vector(0, 0, 1), 0.8), False)
sketch7.addConstraint(Sketcher.Constraint("Equal", 0, 1))
sketch7.addConstraint(Sketcher.Constraint("Equal", 1, 2))
sketch7.addConstraint(Sketcher.Constraint("Equal", 2, 3))
sketch7.addConstraint(Sketcher.Constraint("Equal", 3, 4))
sketch7.addConstraint(Sketcher.Constraint("Equal", 4, 5))
sketch7.addConstraint(Sketcher.Constraint("Symmetric", 0, 3, 3, 3, -1, 1))
sketch7.addConstraint(Sketcher.Constraint("Symmetric", 1, 3, 4, 3, -1, 1))
sketch7.addConstraint(Sketcher.Constraint("Symmetric", 2, 3, 5, 3, -1, 1))
sketch7.addConstraint(Sketcher.Constraint("Symmetric", 2, 3, 4, 3, -2))
sketch7.addConstraint(Sketcher.Constraint("PointOnObject", 0, 3, -2))
sketch7.addConstraint(Sketcher.Constraint("Diameter", 0, 1.6))
sketch7.addConstraint(Sketcher.Constraint("DistanceY", 3, 3, 0, 3, 32.5))
sketch7.addConstraint(Sketcher.Constraint("DistanceY", 2, 3, 1, 3, 16.25))
sketch7.addConstraint(Sketcher.Constraint("DistanceX", 1, 3, -1, 1, 14.072913))
pocket2 = body2.newObject("PartDesign::Pocket", "Pocket001")
pocket2.Profile = sketch7
pocket2.Length = 4
pocket2.Reversed = True

# Sketch on XY plane
sketch8 = body2.newObject("Sketcher::SketchObject", "Sketch007")
sketch8.AttachmentSupport = (doc.getObject("XY_Plane001"), [""])
sketch8.MapMode = "FlatFace"
sketch8.AttachmentOffset = App.Placement(App.Vector(0, 0, -8), App.Rotation())
sketch8.addGeometry(Part.LineSegment(App.Vector(42, -12, 0), App.Vector(13, -12, 0)), False)
sketch8.addGeometry(Part.ArcOfCircle(Part.Circle(App.Vector(0, 0, 0), App.Vector(0, 0, 1), 18), math.radians(-44), math.radians(44)), False)
sketch8.addGeometry(Part.LineSegment(App.Vector(13, 12, 0), App.Vector(42, 12, 0)), False)
sketch8.addGeometry(Part.LineSegment(App.Vector(42, 12, 0), App.Vector(42, -12, 0)), False)
sketch8.addConstraint(Sketcher.Constraint("Coincident", 0, 2, 1, 1))
sketch8.addConstraint(Sketcher.Constraint("Coincident", 1, 2, 2, 1))
sketch8.addConstraint(Sketcher.Constraint("Coincident", 2, 2, 3, 1))
sketch8.addConstraint(Sketcher.Constraint("Coincident", 3, 2, 0, 1))
sketch8.addConstraint(Sketcher.Constraint("Horizontal", 0))
sketch8.addConstraint(Sketcher.Constraint("Horizontal", 2))
sketch8.addConstraint(Sketcher.Constraint("Vertical", 3))
sketch8.addConstraint(Sketcher.Constraint("Coincident", 1, 3, -1, 1))
sketch8.addConstraint(Sketcher.Constraint("Vertical", 0, 2, 1, 2))
sketch8.addConstraint(Sketcher.Constraint("Radius", 1, 18.0))
sketch8.addConstraint(Sketcher.Constraint("DistanceY", 3, 2, 3, 1, 25.0))
sketch8.addConstraint(Sketcher.Constraint("DistanceX", 0, 2, 0, 1, 28.579528))
pad6 = body2.newObject("PartDesign::Pad", "Pad005")
pad6.Profile = sketch8
pad6.Length = 4

# Sketch on XY plane
sketch9 = body2.newObject("Sketcher::SketchObject", "Sketch008")
sketch9.AttachmentSupport = (doc.getObject("XY_Plane001"), [""])
sketch9.MapMode = "FlatFace"
sketch9.AttachmentOffset = App.Placement(App.Vector(0, 0, -8), App.Rotation())
sketch9.addGeometry(Part.Circle(App.Vector(21.5, 7.5, 0), App.Vector(0, 0, 1), 2), False)
sketch9.addGeometry(Part.Circle(App.Vector(21.5, -7.5, 0), App.Vector(0, 0, 1), 2), False)
sketch9.addGeometry(Part.Circle(App.Vector(36.5, -7.5, 0), App.Vector(0, 0, 1), 2), False)
sketch9.addGeometry(Part.Circle(App.Vector(36.5, 7.5, 0), App.Vector(0, 0, 1), 2), False)
sketch9.addConstraint(Sketcher.Constraint("Equal", 0, 1))
sketch9.addConstraint(Sketcher.Constraint("Equal", 1, 2))
sketch9.addConstraint(Sketcher.Constraint("Equal", 2, 3))
sketch9.addConstraint(Sketcher.Constraint("Symmetric", 0, 3, 1, 3, -1))
sketch9.addConstraint(Sketcher.Constraint("Symmetric", 2, 3, 3, 3, -1))
sketch9.addConstraint(Sketcher.Constraint("Horizontal", 1, 3, 2, 3))
sketch9.addConstraint(Sketcher.Constraint("Diameter", 0, 4.0))
sketch9.addConstraint(Sketcher.Constraint("DistanceY", 1, 3, 0, 3, 15.0))
sketch9.addConstraint(Sketcher.Constraint("DistanceX", 1, 3, 2, 3, 15.0))
sketch9.addConstraint(Sketcher.Constraint("DistanceX", -1, 1, 0, 3, 21.531362))
pocket3 = body2.newObject("PartDesign::Pocket", "Pocket002")
pocket3.Profile = sketch9
pocket3.Length = 4
pocket3.Reversed = True
doc.recompute()

fillet = body2.newObject("PartDesign::Fillet", "Fillet")
fillet.Base = (pocket3, edges_at(pocket3, [
    (41.531, -12.5, -6),
    (41.531, 12.5, -6),
    (12.952, 12.5, -6),
    (12.952, -12.5, -6),
]))
fillet.Radius = 3
body3 = doc.addObject("PartDesign::Body", "Body002")

# Sketch on XY plane
sketch10 = body3.newObject("Sketcher::SketchObject", "Sketch009")
sketch10.AttachmentSupport = (doc.getObject("XY_Plane002"), [""])
sketch10.MapMode = "FlatFace"
sketch10.AttachmentOffset = App.Placement(App.Vector(0, 0, -8), App.Rotation())
sketch10.addGeometry(Part.Circle(App.Vector(0, 0, 0), App.Vector(0, 0, 1), 18), False)
sketch10.addConstraint(Sketcher.Constraint("Coincident", 0, 3, -1, 1))
sketch10.addConstraint(Sketcher.Constraint("Diameter", 0, 36.0))
pad7 = body3.newObject("PartDesign::Pad", "Pad006")
pad7.Profile = sketch10
pad7.Length = 12
pad7.Reversed = True

doc.recompute()
